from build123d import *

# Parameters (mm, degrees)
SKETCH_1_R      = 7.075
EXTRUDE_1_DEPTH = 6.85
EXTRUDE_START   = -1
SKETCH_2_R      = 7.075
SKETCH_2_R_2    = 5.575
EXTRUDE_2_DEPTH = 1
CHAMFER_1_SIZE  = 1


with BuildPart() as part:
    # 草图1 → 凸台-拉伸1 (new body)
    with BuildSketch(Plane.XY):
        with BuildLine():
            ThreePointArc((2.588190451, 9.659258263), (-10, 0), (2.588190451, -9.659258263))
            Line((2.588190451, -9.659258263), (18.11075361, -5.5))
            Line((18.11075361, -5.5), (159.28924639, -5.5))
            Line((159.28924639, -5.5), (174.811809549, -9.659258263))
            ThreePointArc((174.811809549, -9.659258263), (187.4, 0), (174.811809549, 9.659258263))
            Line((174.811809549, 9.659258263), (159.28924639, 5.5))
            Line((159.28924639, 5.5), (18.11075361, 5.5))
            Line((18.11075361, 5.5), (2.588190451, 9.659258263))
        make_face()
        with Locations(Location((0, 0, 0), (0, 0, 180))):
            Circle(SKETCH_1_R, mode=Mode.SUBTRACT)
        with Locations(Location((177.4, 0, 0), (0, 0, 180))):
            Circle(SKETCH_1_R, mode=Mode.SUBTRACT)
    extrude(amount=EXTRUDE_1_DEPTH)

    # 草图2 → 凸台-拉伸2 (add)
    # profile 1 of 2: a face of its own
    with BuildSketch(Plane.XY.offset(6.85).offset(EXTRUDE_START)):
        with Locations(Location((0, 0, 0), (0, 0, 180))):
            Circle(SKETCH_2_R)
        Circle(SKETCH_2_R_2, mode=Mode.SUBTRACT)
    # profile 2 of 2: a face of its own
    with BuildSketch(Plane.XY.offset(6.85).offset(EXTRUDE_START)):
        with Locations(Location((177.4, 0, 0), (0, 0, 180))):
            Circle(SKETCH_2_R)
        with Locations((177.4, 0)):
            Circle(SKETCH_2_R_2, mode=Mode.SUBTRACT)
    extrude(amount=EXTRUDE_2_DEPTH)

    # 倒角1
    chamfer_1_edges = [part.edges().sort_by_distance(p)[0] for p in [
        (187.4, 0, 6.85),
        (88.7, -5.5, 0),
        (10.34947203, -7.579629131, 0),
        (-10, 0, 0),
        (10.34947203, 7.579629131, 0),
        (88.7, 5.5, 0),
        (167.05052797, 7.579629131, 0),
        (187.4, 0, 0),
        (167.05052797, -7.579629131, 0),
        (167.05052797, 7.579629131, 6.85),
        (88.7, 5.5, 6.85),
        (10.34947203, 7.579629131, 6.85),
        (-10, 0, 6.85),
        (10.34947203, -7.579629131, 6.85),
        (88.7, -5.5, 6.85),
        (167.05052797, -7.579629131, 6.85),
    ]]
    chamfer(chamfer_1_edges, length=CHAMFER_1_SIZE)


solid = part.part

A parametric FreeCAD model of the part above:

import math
import FreeCAD as App
import Part
import Sketcher
Q = App.Units.Quantity


def edges_at(feature, points):
    """Names of the edges that pass closest to the given points."""
    edges = feature.Shape.Edges
    near = lambda p: min(range(len(edges)), key=lambda i: edges[i].distToShape(Part.Vertex(*p))[0])
    return sorted({f"Edge{near(p) + 1}" for p in points})

doc = App.newDocument("Part")
body = doc.addObject("PartDesign::Body", "Body")

# Sketch on XY plane
sketch1 = doc.addObject("Sketcher::SketchObject", "Sketch")
body.addObject(sketch1)
sketch1.AttachmentSupport = (doc.XY_Plane, [""])
sketch1.MapMode = "FlatFace"
sketch1.addGeometry([
    Part.ArcOfCircle(Part.Circle(App.Vector(0, 0, 0), App.Vector(0, 0, 1), 10), math.radians(75), math.radians(285)),  # 0
    Part.LineSegment(App.Vector(2.58819, -9.659258, 0), App.Vector(18.110754, -5.5, 0)),  # 1
    Part.LineSegment(App.Vector(18.110754, -5.5, 0), App.Vector(159.289246, -5.5, 0)),  # 2
    Part.LineSegment(App.Vector(159.289246, -5.5, 0), App.Vector(174.81181, -9.659258, 0)),  # 3
    Part.ArcOfCircle(Part.Circle(App.Vector(177.4, 0, 0), App.Vector(0, 0, 1), 10), math.radians(-105), math.radians(105)),  # 4
    Part.LineSegment(App.Vector(174.81181, 9.659258, 0), App.Vector(159.289246, 5.5, 0)),  # 5
    Part.LineSegment(App.Vector(159.289246, 5.5, 0), App.Vector(18.110754, 5.5, 0)),  # 6
    Part.LineSegment(App.Vector(18.110754, 5.5, 0), App.Vector(2.58819, 9.659258, 0)),  # 7
    Part.Circle(App.Vector(0, 0, 0), App.Vector(0, 0, 1), 7.075),  # 8
    Part.Circle(App.Vector(177.4, 0, 0), App.Vector(0, 0, 1), 7.075),  # 9
], False)
sketch1.addConstraint([
    Sketcher.Constraint("Tangent", 0, 2, 1, 1),
    Sketcher.Constraint("Coincident", 1, 2, 2, 1),
    Sketcher.Constraint("Coincident", 2, 2, 3, 1),
    Sketcher.Constraint("Tangent", 3, 2, 4, 1),
    Sketcher.Constraint("Tangent", 4, 2, 5, 1),
    Sketcher.Constraint("Coincident", 5, 2, 6, 1),
    Sketcher.Constraint("Coincident", 6, 2, 7, 1),
    Sketcher.Constraint("Tangent", 7, 2, 0, 1),
    Sketcher.Constraint("Horizontal", 2),
    Sketcher.Constraint("Horizontal", 6),
    Sketcher.Constraint("Coincident", 0, 3, -1, 1),
    Sketcher.Constraint("Coincident", 8, 3, -1, 1),
    Sketcher.Constraint("Coincident", 9, 3, 4, 3),
    Sketcher.Constraint("Equal", 0, 4),
    Sketcher.Constraint("Equal", 8, 9),
    Sketcher.Constraint("Symmetric", 3, 2, 4, 2, -1),
    Sketcher.Constraint("Symmetric", 1, 2, 6, 2, -1),
    Sketcher.Constraint("Parallel", 1, 5),
    Sketcher.Constraint("Radius", 0, Q("10 mm")),
    Sketcher.Constraint("Diameter", 8, Q("14.15 mm")),
    Sketcher.Constraint("Angle", 1, Q("15 deg")),
    Sketcher.Constraint("DistanceY", 2, 2, 5, 2, Q("11 mm")),
    Sketcher.Constraint("DistanceX", -1, 1, 4, 3, Q("177.4 mm")),
])
pad1 = doc.addObject("PartDesign::Pad", "Pad")
body.addObject(pad1)
pad1.Profile = sketch1
pad1.Length = 6.85

# Sketch on XY plane
sketch2 = doc.addObject("Sketcher::SketchObject", "Sketch001")
body.addObject(sketch2)
sketch2.AttachmentSupport = (doc.XY_Plane, [""])
sketch2.MapMode = "FlatFace"
sketch2.AttachmentOffset = App.Placement(App.Vector(0, 0, 5.85), App.Rotation())
sketch2.addGeometry([
    Part.Circle(App.Vector(0, 0, 0), App.Vector(0, 0, 1), 7.075),
    Part.Circle(App.Vector(0, 0, 0), App.Vector(0, 0, 1), 5.575),
    Part.Circle(App.Vector(177.4, 0, 0), App.Vector(0, 0, 1), 7.075),
    Part.Circle(App.Vector(177.4, 0, 0), App.Vector(0, 0, 1), 5.575),
], False)
sketch2.addConstraint([
    Sketcher.Constraint("Coincident", 0, 3, -1, 1),
    Sketcher.Constraint("Coincident", 1, 3, -1, 1),
    Sketcher.Constraint("Coincident", 3, 3, 2, 3),
    Sketcher.Constraint("Equal", 0, 2),
    Sketcher.Constraint("Equal", 1, 3),
    Sketcher.Constraint("PointOnObject", 2, 3, -1),
    Sketcher.Constraint("Diameter", 0, Q("14.15 mm")),
    Sketcher.Constraint("Diameter", 1, Q("11.15 mm")),
    Sketcher.Constraint("DistanceX", -1, 1, 2, 3, Q("177.4 mm")),
])
pad2 = doc.addObject("PartDesign::Pad", "Pad001")
body.addObject(pad2)
pad2.Profile = sketch2
pad2.Length = 1
doc.recompute()

chamfer = doc.addObject("PartDesign::Chamfer", "Chamfer")
body.addObject(chamfer)
chamfer.Base = (pad2, edges_at(pad2, [
    (187.4, 0, 6.85),
    (88.7, -5.5, 0),
    (10.349, -7.58, 0),
    (-10, 0, 0),
    (10.349, 7.58, 0),
    (88.7, 5.5, 0),
    (167.051, 7.58, 0),
    (187.4, 0, 0),
    (167.051, -7.58, 0),
    (167.051, 7.58, 6.85),
    (88.7, 5.5, 6.85),
    (10.349, 7.58, 6.85),
    (-10, 0, 6.85),
    (10.349, -7.58, 6.85),
    (88.7, -5.5, 6.85),
    (167.051, -7.58, 6.85),
]))
chamfer.Size = 1

doc.recompute()
